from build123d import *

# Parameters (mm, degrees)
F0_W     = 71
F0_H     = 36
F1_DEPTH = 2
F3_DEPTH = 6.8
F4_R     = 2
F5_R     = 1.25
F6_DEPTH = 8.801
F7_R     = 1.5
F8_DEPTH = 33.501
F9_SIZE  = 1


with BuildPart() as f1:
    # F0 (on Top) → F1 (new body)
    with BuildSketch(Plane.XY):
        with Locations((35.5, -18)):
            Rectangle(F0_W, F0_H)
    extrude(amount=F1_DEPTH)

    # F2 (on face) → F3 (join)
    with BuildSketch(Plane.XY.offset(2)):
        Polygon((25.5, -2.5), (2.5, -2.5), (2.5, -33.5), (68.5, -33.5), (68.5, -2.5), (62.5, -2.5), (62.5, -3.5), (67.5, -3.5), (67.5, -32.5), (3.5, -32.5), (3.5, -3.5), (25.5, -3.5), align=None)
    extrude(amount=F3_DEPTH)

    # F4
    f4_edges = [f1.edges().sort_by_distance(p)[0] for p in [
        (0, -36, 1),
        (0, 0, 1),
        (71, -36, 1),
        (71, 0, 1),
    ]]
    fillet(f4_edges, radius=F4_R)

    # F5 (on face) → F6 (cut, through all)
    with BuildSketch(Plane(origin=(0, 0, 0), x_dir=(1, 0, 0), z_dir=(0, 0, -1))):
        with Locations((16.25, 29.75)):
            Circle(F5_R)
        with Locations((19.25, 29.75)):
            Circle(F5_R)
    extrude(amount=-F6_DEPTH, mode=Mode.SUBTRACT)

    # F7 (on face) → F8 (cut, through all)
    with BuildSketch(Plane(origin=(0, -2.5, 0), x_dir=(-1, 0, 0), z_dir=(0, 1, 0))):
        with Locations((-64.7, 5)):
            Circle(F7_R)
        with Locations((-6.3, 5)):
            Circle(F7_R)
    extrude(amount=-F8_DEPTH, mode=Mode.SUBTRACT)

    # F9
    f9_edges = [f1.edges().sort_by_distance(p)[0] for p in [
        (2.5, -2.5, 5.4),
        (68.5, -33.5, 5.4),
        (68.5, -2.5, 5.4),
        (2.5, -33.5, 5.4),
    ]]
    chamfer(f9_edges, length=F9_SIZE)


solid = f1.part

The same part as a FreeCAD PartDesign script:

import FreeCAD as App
import Part
import Sketcher


def edges_at(feature, points):
    """Names of the edges that pass closest to the given points."""
    edges = feature.Shape.Edges
    near = lambda p: min(range(len(edges)), key=lambda i: edges[i].distToShape(Part.Vertex(*p))[0])
    return sorted({f"Edge{near(p) + 1}" for p in points})

doc = App.newDocument("Part")
body = doc.addObject("PartDesign::Body", "Body")

sketch1 = body.newObject("Sketcher::SketchObject", "Sketch")
sketch1.AttachmentSupport = (doc.getObject("XY_Plane"), [""])
sketch1.MapMode = "FlatFace"
sketch1.addGeometry([
    Part.LineSegment(App.Vector(0, 0, 0), App.Vector(0, -36, 0)),
    Part.LineSegment(App.Vector(0, -36, 0), App.Vector(71, -36, 0)),
    Part.LineSegment(App.Vector(71, -36, 0), App.Vector(71, 0, 0)),
    Part.LineSegment(App.Vector(71, 0, 0), App.Vector(0, 0, 0)),
], False)
sketch1.addConstraint([
    Sketcher.Constraint("Coincident", 0, 2, 1, 1),
    Sketcher.Constraint("Coincident", 1, 2, 2, 1),
    Sketcher.Constraint("Coincident", 2, 2, 3, 1),
    Sketcher.Constraint("Coincident", 3, 2, 0, 1),
    Sketcher.Constraint("Vertical", 0),
    Sketcher.Constraint("Horizontal", 1),
    Sketcher.Constraint("Vertical", 2),
    Sketcher.Constraint("Horizontal", 3),
    Sketcher.Constraint("Coincident", 3, 2, -1, 1),
    Sketcher.Constraint("DistanceX", 1, 1, 1, 2, 71.0),
    Sketcher.Constraint("DistanceY", 0, 2, 0, 1, 36.0),
])
pad1 = body.newObject("PartDesign::Pad", "Pad")
pad1.Profile = sketch1
pad1.Length = 2

sketch2 = body.newObject("Sketcher::SketchObject", "Sketch001")
sketch2.AttachmentSupport = (doc.getObject("XY_Plane"), [""])
sketch2.MapMode = "FlatFace"
sketch2.AttachmentOffset = App.Placement(App.Vector(0, 0, 2), App.Rotation())
sketch2.addGeometry([
    Part.LineSegment(App.Vector(25.5, -2.5, 0), App.Vector(2.5, -2.5, 0)),
    Part.LineSegment(App.Vector(2.5, -2.5, 0), App.Vector(2.5, -33.5, 0)),
    Part.LineSegment(App.Vector(2.5, -33.5, 0), App.Vector(68.5, -33.5, 0)),
    Part.LineSegment(App.Vector(68.5, -33.5, 0), App.Vector(68.5, -2.5, 0)),
    Part.LineSegment(App.Vector(68.5, -2.5, 0), App.Vector(62.5, -2.5, 0)),
    Part.LineSegment(App.Vector(62.5, -2.5, 0), App.Vector(62.5, -3.5, 0)),
    Part.LineSegment(App.Vector(62.5, -3.5, 0), App.Vector(67.5, -3.5, 0)),
    Part.LineSegment(App.Vector(67.5, -3.5, 0), App.Vector(67.5, -32.5, 0)),
    Part.LineSegment(App.Vector(67.5, -32.5, 0), App.Vector(3.5, -32.5, 0)),
    Part.LineSegment(App.Vector(3.5, -32.5, 0), App.Vector(3.5, -3.5, 0)),
    Part.LineSegment(App.Vector(3.5, -3.5, 0), App.Vector(25.5, -3.5, 0)),
    Part.LineSegment(App.Vector(25.5, -3.5, 0), App.Vector(25.5, -2.5, 0)),
], False)
sketch2.addConstraint([
    Sketcher.Constraint("Coincident", 0, 2, 1, 1),
    Sketcher.Constraint("Coincident", 1, 2, 2, 1),
    Sketcher.Constraint("Coincident", 2, 2, 3, 1),
    Sketcher.Constraint("Coincident", 3, 2, 4, 1),
    Sketcher.Constraint("Coincident", 4, 2, 5, 1),
    Sketcher.Constraint("Coincident", 5, 2, 6, 1),
    Sketcher.Constraint("Coincident", 6, 2, 7, 1),
    Sketcher.Constraint("Coincident", 7, 2, 8, 1),
    Sketcher.Constraint("Coincident", 8, 2, 9, 1),
    Sketcher.Constraint("Coincident", 9, 2, 10, 1),
    Sketcher.Constraint("Coincident", 10, 2, 11, 1),
    Sketcher.Constraint("Coincident", 11, 2, 0, 1),
    Sketcher.Constraint("Horizontal", 0),
    Sketcher.Constraint("Vertical", 1),
    Sketcher.Constraint("Horizontal", 2),
    Sketcher.Constraint("Vertical", 3),
    Sketcher.Constraint("Horizontal", 4),
    Sketcher.Constraint("Vertical", 5),
    Sketcher.Constraint("Horizontal", 6),
    Sketcher.Constraint("Vertical", 7),
    Sketcher.Constraint("Horizontal", 8),
    Sketcher.Constraint("Vertical", 9),
    Sketcher.Constraint("Horizontal", 10),
    Sketcher.Constraint("Vertical", 11),
    Sketcher.Constraint("Horizontal", 0, 2, 3, 2),
    Sketcher.Constraint("Horizontal", 6, 2, 9, 2),
    Sketcher.Constraint("DistanceX", 0, 2, 0, 1, 23.0),
    Sketcher.Constraint("DistanceX", 2, 1, 2, 2, 66.0),
    Sketcher.Constraint("DistanceX", 4, 2, 4, 1, 6.0),
    Sketcher.Constraint("DistanceX", 6, 1, 6, 2, 5.0),
    Sketcher.Constraint("DistanceX", 8, 2, 8, 1, 64.0),
    Sketcher.Constraint("DistanceY", 1, 2, 1, 1, 31.0),
    Sketcher.Constraint("DistanceY", 5, 2, 5, 1, 1.0),
    Sketcher.Constraint("DistanceY", 7, 2, 7, 1, 29.0),
    Sketcher.Constraint("DistanceX", -1, 1, 0, 2, 2.5),
    Sketcher.Constraint("DistanceY", 0, 2, -1, 1, 2.5),
])
pad2 = body.newObject("PartDesign::Pad", "Pad001")
pad2.Profile = sketch2
pad2.Length = 6.8
doc.recompute()

fillet = body.newObject("PartDesign::Fillet", "Fillet")
fillet.Base = (pad2, edges_at(pad2, [
    (0, -36, 1),
    (0, 0, 1),
    (71, -36, 1),
    (71, 0, 1),
]))
fillet.Radius = 2

sketch3 = body.newObject("Sketcher::SketchObject", "Sketch002")
sketch3.AttachmentSupport = (doc.getObject("XY_Plane"), [""])
sketch3.MapMode = "FlatFace"
sketch3.addGeometry([
    Part.Circle(App.Vector(16.2, -29.8, 0), App.Vector(0, 0, 1), 1.2),
    Part.Circle(App.Vector(19.2, -29.8, 0), App.Vector(0, 0, 1), 1.2),
], False)
sketch3.addConstraint([
    Sketcher.Constraint("Equal", 0, 1),
    Sketcher.Constraint("Horizontal", 0, 3, 1, 3),
    Sketcher.Constraint("Diameter", 0, 2.5),
    Sketcher.Constraint("DistanceX", 0, 3, 1, 3, 3.0),
    Sketcher.Constraint("DistanceX", -1, 1, 0, 3, 16.25),
    Sketcher.Constraint("DistanceY", 0, 3, -1, 1, 29.75),
])
pocket1 = body.newObject("PartDesign::Pocket", "Pocket")
pocket1.Profile = sketch3
pocket1.Type = "ThroughAll"
pocket1.Reversed = True

sketch4 = body.newObject("Sketcher::SketchObject", "Sketch003")
sketch4.AttachmentSupport = (doc.getObject("XZ_Plane"), [""])
sketch4.MapMode = "FlatFace"
sketch4.AttachmentOffset = App.Placement(App.Vector(0, 0, 2.5), App.Rotation())
sketch4.addGeometry([
    Part.Circle(App.Vector(64.7, 5, 0), App.Vector(0, 0, 1), 1.5),
    Part.Circle(App.Vector(6.3, 5, 0), App.Vector(0, 0, 1), 1.5),
], False)
sketch4.addConstraint([
    Sketcher.Constraint("Equal", 0, 1),
    Sketcher.Constraint("Horizontal", 0, 3, 1, 3),
    Sketcher.Constraint("Diameter", 0, 3.0),
    Sketcher.Constraint("DistanceY", -1, 1, 0, 3, 5.0),
    Sketcher.Constraint("DistanceX", -1, 1, 0, 3, 64.7),
    Sketcher.Constraint("DistanceX", -1, 1, 1, 3, 6.3),
])
pocket2 = body.newObject("PartDesign::Pocket", "Pocket001")
pocket2.Profile = sketch4
pocket2.Type = "ThroughAll"
pocket2.Reversed = True
doc.recompute()

chamfer = body.newObject("PartDesign::Chamfer", "Chamfer")
chamfer.Base = (pocket2, edges_at(pocket2, [
    (2.5, -2.5, 5.4),
    (68.5, -33.5, 5.4),
    (68.5, -2.5, 5.4),
    (2.5, -33.5, 5.4),
]))
chamfer.Size = 1

doc.recompute()
